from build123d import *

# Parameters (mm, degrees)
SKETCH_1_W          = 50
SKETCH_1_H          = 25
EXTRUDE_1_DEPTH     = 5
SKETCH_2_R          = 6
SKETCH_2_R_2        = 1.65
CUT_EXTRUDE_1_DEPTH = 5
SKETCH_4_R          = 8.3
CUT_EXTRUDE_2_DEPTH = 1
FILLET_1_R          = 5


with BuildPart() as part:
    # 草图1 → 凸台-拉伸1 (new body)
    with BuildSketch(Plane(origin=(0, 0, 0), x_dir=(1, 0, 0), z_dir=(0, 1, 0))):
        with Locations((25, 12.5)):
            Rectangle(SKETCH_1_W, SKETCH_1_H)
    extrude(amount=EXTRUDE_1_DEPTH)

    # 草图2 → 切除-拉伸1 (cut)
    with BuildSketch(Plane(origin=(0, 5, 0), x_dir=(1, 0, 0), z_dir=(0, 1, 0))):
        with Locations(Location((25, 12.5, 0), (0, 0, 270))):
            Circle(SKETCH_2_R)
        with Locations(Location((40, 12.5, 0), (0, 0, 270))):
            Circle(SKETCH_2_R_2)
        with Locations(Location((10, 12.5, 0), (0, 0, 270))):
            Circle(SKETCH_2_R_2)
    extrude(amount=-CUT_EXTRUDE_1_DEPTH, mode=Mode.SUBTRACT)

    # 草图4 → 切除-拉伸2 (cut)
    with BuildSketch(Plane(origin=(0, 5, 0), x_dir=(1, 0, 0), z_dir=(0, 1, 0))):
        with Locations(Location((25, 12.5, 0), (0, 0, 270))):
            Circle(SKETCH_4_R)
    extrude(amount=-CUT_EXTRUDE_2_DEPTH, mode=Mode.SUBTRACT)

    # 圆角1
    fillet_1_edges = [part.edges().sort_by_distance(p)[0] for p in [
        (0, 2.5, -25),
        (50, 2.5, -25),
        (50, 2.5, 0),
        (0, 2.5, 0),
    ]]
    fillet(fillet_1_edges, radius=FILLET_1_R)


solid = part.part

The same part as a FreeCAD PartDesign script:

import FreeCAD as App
import Part
import Sketcher
from FreeCAD import Vector
Q = App.Units.Quantity


def edges_at(feature, points):
    """Names of the edges that pass closest to the given points."""
    edges = feature.Shape.Edges
    near = lambda p: min(range(len(edges)), key=lambda i: edges[i].distToShape(Part.Vertex(*p))[0])
    return sorted({f"Edge{near(p) + 1}" for p in points})

doc = App.newDocument("Part")
body = doc.addObject("PartDesign::Body", "Body")

# Sketch on XZ plane
sketch1 = body.newObject("Sketcher::SketchObject", "Sketch")
sketch1.AttachmentSupport = (doc.getObject("XZ_Plane"), [""])
sketch1.MapMode = "FlatFace"
sketch1.addGeometry(Part.LineSegment(Vector(0, -25, 0), Vector(0, 0, 0)), False)
sketch1.addGeometry(Part.LineSegment(Vector(0, 0, 0), Vector(50, 0, 0)), False)
sketch1.addGeometry(Part.LineSegment(Vector(50, 0, 0), Vector(50, -25, 0)), False)
sketch1.addGeometry(Part.LineSegment(Vector(50, -25, 0), Vector(0, -25, 0)), False)
sketch1.addConstraint(Sketcher.Constraint("Coincident", 0, 2, 1, 1))
sketch1.addConstraint(Sketcher.Constraint("Coincident", 1, 2, 2, 1))
sketch1.addConstraint(Sketcher.Constraint("Coincident", 2, 2, 3, 1))
sketch1.addConstraint(Sketcher.Constraint("Coincident", 3, 2, 0, 1))
sketch1.addConstraint(Sketcher.Constraint("Vertical", 0))
sketch1.addConstraint(Sketcher.Constraint("Horizontal", 1))
sketch1.addConstraint(Sketcher.Constraint("Vertical", 2))
sketch1.addConstraint(Sketcher.Constraint("Horizontal", 3))
sketch1.addConstraint(Sketcher.Constraint("Coincident", 0, 2, -1, 1))
sketch1.addConstraint(Sketcher.Constraint("DistanceX", 1, 1, 1, 2, Q("50 mm")))
sketch1.addConstraint(Sketcher.Constraint("DistanceY", 0, 1, 0, 2, Q("25 mm")))
pad1 = body.newObject("PartDesign::Pad", "Pad")
pad1.Profile = sketch1
pad1.Length = 5
pad1.Reversed = True

# Sketch on XZ plane
sketch2 = body.newObject("Sketcher::SketchObject", "Sketch001")
sketch2.AttachmentSupport = (doc.getObject("XZ_Plane"), [""])
sketch2.MapMode = "FlatFace"
sketch2.AttachmentOffset = App.Placement(Vector(0, 0, -5), App.Rotation())
sketch2.addGeometry(Part.Circle(Vector(25, -12.5, 0), Vector(0, 0, 1), 6), False)
sketch2.addGeometry(Part.Circle(Vector(40, -12.5, 0), Vector(0, 0, 1), 1.6), False)
sketch2.addGeometry(Part.Circle(Vector(10, -12.5, 0), Vector(0, 0, 1), 1.6), False)
sketch2.addConstraint(Sketcher.Constraint("Equal", 1, 2))
sketch2.addConstraint(Sketcher.Constraint("Horizontal", 0, 3, 1, 3))
sketch2.addConstraint(Sketcher.Constraint("Horizontal", 1, 3, 2, 3))
sketch2.addConstraint(Sketcher.Constraint("Diameter", 0, Q("12 mm")))
sketch2.addConstraint(Sketcher.Constraint("Diameter", 1, Q("3.3 mm")))
sketch2.addConstraint(Sketcher.Constraint("DistanceX", -1, 1, 0, 3, Q("25 mm")))
sketch2.addConstraint(Sketcher.Constraint("DistanceX", -1, 1, 1, 3, Q("40 mm")))
sketch2.addConstraint(Sketcher.Constraint("DistanceX", -1, 1, 2, 3, Q("10 mm")))
sketch2.addConstraint(Sketcher.Constraint("DistanceY", 0, 3, -1, 1, Q("12.5 mm")))
pocket1 = body.newObject("PartDesign::Pocket", "Pocket")
pocket1.Profile = sketch2
pocket1.Length = 5
pocket1.Reversed = True

# Sketch on XZ plane
sketch3 = body.newObject("Sketcher::SketchObject", "Sketch002")
sketch3.AttachmentSupport = (doc.getObject("XZ_Plane"), [""])
sketch3.MapMode = "FlatFace"
sketch3.AttachmentOffset = App.Placement(Vector(0, 0, -5), App.Rotation())
sketch3.addGeometry(Part.Circle(Vector(25, -12, 0), Vector(0, 0, 1), 8), False)
sketch3.addConstraint(Sketcher.Constraint("Diameter", 0, Q("16.6 mm")))
sketch3.addConstraint(Sketcher.Constraint("DistanceX", -1, 1, 0, 3, Q("25 mm")))
sketch3.addConstraint(Sketcher.Constraint("DistanceY", 0, 3, -1, 1, Q("12.5 mm")))
pocket2 = body.newObject("PartDesign::Pocket", "Pocket001")
pocket2.Profile = sketch3
pocket2.Length = 1
pocket2.Reversed = True
doc.recompute()

fillet = body.newObject("PartDesign::Fillet", "Fillet")
fillet.Base = (pocket2, edges_at(pocket2, [
    (0, 2.5, -25),
    (50, 2.5, -25),
    (50, 2.5, 0),
    (0, 2.5, 0),
]))
fillet.Radius = 5

doc.recompute()
